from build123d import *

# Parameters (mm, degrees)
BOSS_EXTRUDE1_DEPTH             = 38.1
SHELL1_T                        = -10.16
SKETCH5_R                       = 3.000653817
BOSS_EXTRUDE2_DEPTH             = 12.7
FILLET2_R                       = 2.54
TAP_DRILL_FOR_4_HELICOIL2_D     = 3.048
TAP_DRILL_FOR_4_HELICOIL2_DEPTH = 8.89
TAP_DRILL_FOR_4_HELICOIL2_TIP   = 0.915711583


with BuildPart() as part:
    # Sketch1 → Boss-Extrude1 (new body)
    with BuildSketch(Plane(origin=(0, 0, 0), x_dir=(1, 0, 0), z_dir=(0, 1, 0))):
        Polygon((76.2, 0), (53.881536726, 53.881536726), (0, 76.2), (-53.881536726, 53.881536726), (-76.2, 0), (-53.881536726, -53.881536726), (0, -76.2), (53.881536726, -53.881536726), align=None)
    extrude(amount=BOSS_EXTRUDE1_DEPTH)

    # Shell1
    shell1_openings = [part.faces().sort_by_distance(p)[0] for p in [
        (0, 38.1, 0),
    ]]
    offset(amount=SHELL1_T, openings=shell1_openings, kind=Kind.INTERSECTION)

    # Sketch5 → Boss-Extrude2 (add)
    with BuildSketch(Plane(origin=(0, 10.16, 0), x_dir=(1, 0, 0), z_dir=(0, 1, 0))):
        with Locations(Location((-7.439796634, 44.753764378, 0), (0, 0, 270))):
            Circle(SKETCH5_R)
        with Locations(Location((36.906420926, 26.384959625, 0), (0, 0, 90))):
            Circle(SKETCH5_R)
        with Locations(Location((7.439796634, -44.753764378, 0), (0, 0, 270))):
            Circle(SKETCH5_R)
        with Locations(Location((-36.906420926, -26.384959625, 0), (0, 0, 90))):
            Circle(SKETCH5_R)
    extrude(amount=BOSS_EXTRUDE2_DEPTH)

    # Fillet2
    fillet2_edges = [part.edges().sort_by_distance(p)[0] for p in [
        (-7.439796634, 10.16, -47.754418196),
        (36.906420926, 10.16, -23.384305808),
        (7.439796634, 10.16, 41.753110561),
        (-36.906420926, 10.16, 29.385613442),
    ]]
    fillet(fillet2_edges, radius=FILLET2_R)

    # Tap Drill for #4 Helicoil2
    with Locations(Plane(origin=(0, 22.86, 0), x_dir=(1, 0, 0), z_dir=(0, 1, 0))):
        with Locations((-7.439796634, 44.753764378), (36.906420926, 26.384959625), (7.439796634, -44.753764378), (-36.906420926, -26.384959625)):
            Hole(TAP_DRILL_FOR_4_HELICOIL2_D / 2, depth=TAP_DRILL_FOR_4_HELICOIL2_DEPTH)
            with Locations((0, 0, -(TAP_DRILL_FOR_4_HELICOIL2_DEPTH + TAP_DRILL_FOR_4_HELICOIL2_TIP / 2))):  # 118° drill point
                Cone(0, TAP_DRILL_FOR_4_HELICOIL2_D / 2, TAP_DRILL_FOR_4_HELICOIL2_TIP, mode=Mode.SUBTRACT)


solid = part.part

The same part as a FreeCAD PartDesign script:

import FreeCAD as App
import Part
import Sketcher

V = App.Vector
Q = App.Units.Quantity


def edges_at(feature, points):
    """Names of the edges that pass closest to the given points."""
    edges = feature.Shape.Edges
    near = lambda p: min(range(len(edges)), key=lambda i: edges[i].distToShape(Part.Vertex(*p))[0])
    return sorted({f"Edge{near(p) + 1}" for p in points})


def faces_at(feature, points):
    """Names of the faces that lie closest to the given points."""
    faces = feature.Shape.Faces
    near = lambda p: min(range(len(faces)), key=lambda i: faces[i].distToShape(Part.Vertex(*p))[0])
    return sorted({f"Face{near(p) + 1}" for p in points})

doc = App.newDocument("Part")
params = doc.addObject("Spreadsheet::Sheet", "Params")
for row, (alias, value) in enumerate([
    ("pad1_length", "1.5 in"),
    ("thickness_wall", "0.4 in"),
    ("pad2_length", "0.5 in"),
    ("fillet_radius", "0.1 in"),
    ("sketch3_diameter", "0.12 in"),
    ("hole_diameter", "0.12 in"),
    ("hole_depth", "0.35 in"),
], start=1):
    params.set(f"A{row}", alias)
    params.set(f"B{row}", "=" + value)
    params.setAlias(f"B{row}", alias)

body = doc.addObject("PartDesign::Body", "Body")

sketch1 = doc.addObject("Sketcher::SketchObject", "Sketch")
body.addObject(sketch1)
sketch1.AttachmentSupport = (doc.XZ_Plane, [""])
sketch1.MapMode = "FlatFace"
sketch1.addGeometry([
    Part.LineSegment(V(76, 0, 0), V(54, -54, 0)),
    Part.LineSegment(V(54, -54, 0), V(0, -76, 0)),
    Part.LineSegment(V(0, -76, 0), V(-54, -54, 0)),
    Part.LineSegment(V(-54, -54, 0), V(-76, 0, 0)),
    Part.LineSegment(V(-76, 0, 0), V(-54, 54, 0)),
    Part.LineSegment(V(-54, 54, 0), V(0, 76, 0)),
    Part.LineSegment(V(0, 76, 0), V(54, 54, 0)),
    Part.LineSegment(V(54, 54, 0), V(76, 0, 0)),
], False)
sketch1.addConstraint([
    Sketcher.Constraint("Coincident", 0, 2, 1, 1),
    Sketcher.Constraint("Coincident", 1, 2, 2, 1),
    Sketcher.Constraint("Coincident", 2, 2, 3, 1),
    Sketcher.Constraint("Coincident", 3, 2, 4, 1),
    Sketcher.Constraint("Coincident", 4, 2, 5, 1),
    Sketcher.Constraint("Coincident", 5, 2, 6, 1),
    Sketcher.Constraint("Coincident", 6, 2, 7, 1),
    Sketcher.Constraint("Coincident", 7, 2, 0, 1),
    Sketcher.Constraint("Symmetric", 0, 2, 4, 2, -1, 1),
    Sketcher.Constraint("Symmetric", 1, 2, 5, 2, -1, 1),
    Sketcher.Constraint("Symmetric", 2, 2, 6, 2, -1, 1),
    Sketcher.Constraint("Symmetric", 3, 2, 7, 2, -1, 1),
    Sketcher.Constraint("Symmetric", 0, 2, 2, 2, -2),
    Sketcher.Constraint("PointOnObject", 1, 2, -2),
    Sketcher.Constraint("PointOnObject", 3, 2, -1),
    Sketcher.Constraint("Perpendicular", 0, 2),
    Sketcher.Constraint("Equal", 0, 1),
    Sketcher.Constraint("DistanceY", 1, 2, -1, 1, Q("3 in")),
    Sketcher.Constraint("Angle", 0, Q("-112.5 deg")),
])
pad1 = doc.addObject("PartDesign::Pad", "Pad")
body.addObject(pad1)
pad1.Profile = sketch1
pad1.setExpression("Length", "Params.pad1_length")
pad1.Reversed = True
doc.recompute()

thickness = doc.addObject("PartDesign::Thickness", "Thickness")
body.addObject(thickness)
thickness.Base = (pad1, faces_at(pad1, [(0, 38.1, 0)]))
thickness.setExpression("Value", "Params.thickness_wall")
thickness.Reversed = True
thickness.Join = "Intersection"

sketch2 = doc.addObject("Sketcher::SketchObject", "Sketch001")
body.addObject(sketch2)
sketch2.AttachmentSupport = (doc.XZ_Plane, [""])
sketch2.MapMode = "FlatFace"
sketch2.AttachmentOffset = App.Placement(V(0, 0, -0.4 * 25.4), App.Rotation())
sketch2.addGeometry([
    Part.Circle(V(-7.4, -44.8, 0), V(0, 0, 1), 3),
    Part.Circle(V(36.9, -26.4, 0), V(0, 0, 1), 3),
    Part.Circle(V(7.4, 44.8, 0), V(0, 0, 1), 3),
    Part.Circle(V(-36.9, 26.4, 0), V(0, 0, 1), 3),
], False)
sketch2.addConstraint([
    Sketcher.Constraint("Equal", 0, 1),
    Sketcher.Constraint("Equal", 1, 2),
    Sketcher.Constraint("Equal", 2, 3),
    Sketcher.Constraint("Symmetric", 0, 3, 2, 3, -1, 1),
    Sketcher.Constraint("Symmetric", 1, 3, 3, 3, -1, 1),
    Sketcher.Constraint("Diameter", 0, Q("6.001308 mm")),
    Sketcher.Constraint("DistanceX", -1, 1, 1, 3, Q("36.906421 mm")),
    Sketcher.Constraint("DistanceY", 1, 3, -1, 1, Q("26.38496 mm")),
    Sketcher.Constraint("DistanceY", 0, 3, 2, 3, Q("89.507529 mm")),
    Sketcher.Constraint("DistanceX", 0, 3, -1, 1, Q("7.439797 mm")),
])
pad2 = doc.addObject("PartDesign::Pad", "Pad001")
body.addObject(pad2)
pad2.Profile = sketch2
pad2.setExpression("Length", "Params.pad2_length")
pad2.Reversed = True
doc.recompute()

fillet = doc.addObject("PartDesign::Fillet", "Fillet")
body.addObject(fillet)
fillet.Base = (pad2, edges_at(pad2, [
    (-7.44, 10.16, -47.754),
    (36.906, 10.16, -23.384),
    (7.44, 10.16, 41.753),
    (-36.906, 10.16, 29.386),
]))
fillet.setExpression("Radius", "Params.fillet_radius")

sketch3 = doc.addObject("Sketcher::SketchObject", "Sketch002")
body.addObject(sketch3)
sketch3.AttachmentSupport = (doc.XZ_Plane, [""])
sketch3.MapMode = "FlatFace"
sketch3.AttachmentOffset = App.Placement(V(0, 0, -0.9 * 25.4), App.Rotation())
sketch3.addGeometry([
    Part.Circle(V(-7.4, -44.8, 0), V(0, 0, 1), 1.5),
    Part.Circle(V(36.9, -26.4, 0), V(0, 0, 1), 1.5),
    Part.Circle(V(7.4, 44.8, 0), V(0, 0, 1), 1.5),
    Part.Circle(V(-36.9, 26.4, 0), V(0, 0, 1), 1.5),
], False)
sketch3.addConstraint([
    Sketcher.Constraint("Equal", 0, 1),
    Sketcher.Constraint("Equal", 1, 2),
    Sketcher.Constraint("Equal", 2, 3),
    Sketcher.Constraint("Symmetric", 0, 3, 2, 3, -1, 1),
    Sketcher.Constraint("Symmetric", 1, 3, 3, 3, -1, 1),
    Sketcher.Constraint("Diameter", 0, Q("0.12 in")),
    Sketcher.Constraint("DistanceX", -1, 1, 1, 3, Q("36.906421 mm")),
    Sketcher.Constraint("DistanceY", 1, 3, -1, 1, Q("26.38496 mm")),
    Sketcher.Constraint("DistanceY", 0, 3, 2, 3, Q("89.507529 mm")),
    Sketcher.Constraint("DistanceX", 0, 3, -1, 1, Q("7.439797 mm")),
])
sketch3.setExpression("Constraints[5]", "Params.sketch3_diameter")
doc.recompute()
hole = doc.addObject("PartDesign::Hole", "Hole")
body.addObject(hole)
hole.Profile = sketch3
hole.ThreadType = "None"
hole.setExpression("Diameter", "Params.hole_diameter")
hole.DepthType = "Dimension"
hole.setExpression("Depth", "Params.hole_depth")
hole.DrillPoint = "Angled"
hole.DrillPointAngle = 118
hole.Reversed = True

doc.recompute()
